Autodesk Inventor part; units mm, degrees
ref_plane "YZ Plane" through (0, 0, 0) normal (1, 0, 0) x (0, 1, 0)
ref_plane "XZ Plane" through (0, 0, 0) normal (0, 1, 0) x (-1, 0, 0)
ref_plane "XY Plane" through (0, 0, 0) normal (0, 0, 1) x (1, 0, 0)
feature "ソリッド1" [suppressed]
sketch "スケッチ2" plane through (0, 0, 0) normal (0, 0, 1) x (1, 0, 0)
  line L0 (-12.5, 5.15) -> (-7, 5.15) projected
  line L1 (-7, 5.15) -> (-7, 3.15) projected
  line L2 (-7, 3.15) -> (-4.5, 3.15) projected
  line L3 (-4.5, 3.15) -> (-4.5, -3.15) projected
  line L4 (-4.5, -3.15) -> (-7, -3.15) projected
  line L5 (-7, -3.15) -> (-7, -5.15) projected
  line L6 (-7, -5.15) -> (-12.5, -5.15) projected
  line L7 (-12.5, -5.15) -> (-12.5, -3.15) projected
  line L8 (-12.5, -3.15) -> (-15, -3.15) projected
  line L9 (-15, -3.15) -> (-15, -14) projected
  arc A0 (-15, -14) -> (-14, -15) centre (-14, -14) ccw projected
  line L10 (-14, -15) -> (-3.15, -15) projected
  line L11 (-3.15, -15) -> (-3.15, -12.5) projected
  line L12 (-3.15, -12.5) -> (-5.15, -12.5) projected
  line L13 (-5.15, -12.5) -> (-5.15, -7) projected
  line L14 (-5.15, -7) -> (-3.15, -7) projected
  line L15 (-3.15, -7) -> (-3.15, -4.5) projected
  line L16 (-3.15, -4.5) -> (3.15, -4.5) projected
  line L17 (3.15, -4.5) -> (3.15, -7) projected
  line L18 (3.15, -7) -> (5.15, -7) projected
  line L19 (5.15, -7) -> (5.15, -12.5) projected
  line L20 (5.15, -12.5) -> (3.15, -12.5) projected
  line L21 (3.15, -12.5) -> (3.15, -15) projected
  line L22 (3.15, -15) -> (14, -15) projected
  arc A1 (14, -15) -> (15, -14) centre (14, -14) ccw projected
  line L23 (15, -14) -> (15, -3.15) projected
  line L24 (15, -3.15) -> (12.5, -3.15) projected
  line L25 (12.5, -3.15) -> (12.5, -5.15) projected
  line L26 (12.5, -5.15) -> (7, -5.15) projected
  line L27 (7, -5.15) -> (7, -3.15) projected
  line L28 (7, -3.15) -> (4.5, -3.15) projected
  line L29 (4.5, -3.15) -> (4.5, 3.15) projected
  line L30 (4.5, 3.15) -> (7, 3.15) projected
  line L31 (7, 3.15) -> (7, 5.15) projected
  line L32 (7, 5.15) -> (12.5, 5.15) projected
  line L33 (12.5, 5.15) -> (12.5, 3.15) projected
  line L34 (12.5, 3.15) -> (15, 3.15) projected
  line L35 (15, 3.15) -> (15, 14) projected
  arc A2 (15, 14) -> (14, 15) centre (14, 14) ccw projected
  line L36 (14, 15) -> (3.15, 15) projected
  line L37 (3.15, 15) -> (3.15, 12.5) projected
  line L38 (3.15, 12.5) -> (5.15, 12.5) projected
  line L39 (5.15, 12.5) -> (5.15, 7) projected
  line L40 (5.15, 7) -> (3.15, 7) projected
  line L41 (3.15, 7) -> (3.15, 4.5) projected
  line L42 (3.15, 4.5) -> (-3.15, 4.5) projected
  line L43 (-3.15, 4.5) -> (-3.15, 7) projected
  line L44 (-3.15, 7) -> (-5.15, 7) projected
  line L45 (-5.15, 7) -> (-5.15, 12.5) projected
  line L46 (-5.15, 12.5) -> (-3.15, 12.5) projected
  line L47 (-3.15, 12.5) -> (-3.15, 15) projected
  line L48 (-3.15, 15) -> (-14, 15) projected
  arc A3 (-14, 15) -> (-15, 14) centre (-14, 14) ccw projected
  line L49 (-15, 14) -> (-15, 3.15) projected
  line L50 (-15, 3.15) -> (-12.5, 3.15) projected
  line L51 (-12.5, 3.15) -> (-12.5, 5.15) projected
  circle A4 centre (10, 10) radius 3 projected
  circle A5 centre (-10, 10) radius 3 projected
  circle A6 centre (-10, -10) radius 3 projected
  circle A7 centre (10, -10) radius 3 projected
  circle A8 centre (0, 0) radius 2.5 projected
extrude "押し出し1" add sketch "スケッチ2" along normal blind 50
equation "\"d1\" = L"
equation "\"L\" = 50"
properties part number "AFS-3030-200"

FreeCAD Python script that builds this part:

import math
import FreeCAD as App
import Part
import Sketcher

doc = App.newDocument("Part")
body = doc.addObject("PartDesign::Body", "Body")

# Sketch on XY plane
sketch1 = body.newObject("Sketcher::SketchObject", "Sketch")
sketch1.AttachmentSupport = (doc.getObject("XY_Plane"), [""])
sketch1.MapMode = "FlatFace"
sketch1.addGeometry([
    Part.LineSegment(App.Vector(-12.5, 3.15, 0), App.Vector(-12.5, 5.15, 0)),  # 0
    Part.LineSegment(App.Vector(-12.5, 5.15, 0), App.Vector(-7, 5.15, 0)),  # 1
    Part.LineSegment(App.Vector(-7, 5.15, 0), App.Vector(-7, 3.15, 0)),  # 2
    Part.LineSegment(App.Vector(-7, 3.15, 0), App.Vector(-4.5, 3.15, 0)),  # 3
    Part.LineSegment(App.Vector(-4.5, 3.15, 0), App.Vector(-4.5, -3.15, 0)),  # 4
    Part.LineSegment(App.Vector(-4.5, -3.15, 0), App.Vector(-7, -3.15, 0)),  # 5
    Part.LineSegment(App.Vector(-7, -3.15, 0), App.Vector(-7, -5.15, 0)),  # 6
    Part.LineSegment(App.Vector(-7, -5.15, 0), App.Vector(-12.5, -5.15, 0)),  # 7
    Part.LineSegment(App.Vector(-12.5, -5.15, 0), App.Vector(-12.5, -3.15, 0)),  # 8
    Part.LineSegment(App.Vector(-12.5, -3.15, 0), App.Vector(-15, -3.15, 0)),  # 9
    Part.LineSegment(App.Vector(-15, -3.15, 0), App.Vector(-15, -14, 0)),  # 10
    Part.ArcOfCircle(Part.Circle(App.Vector(-14, -14, 0), App.Vector(0, 0, 1), 1), math.radians(180), math.radians(270)),  # 11
    Part.LineSegment(App.Vector(-14, -15, 0), App.Vector(-3.15, -15, 0)),  # 12
    Part.LineSegment(App.Vector(-3.15, -15, 0), App.Vector(-3.15, -12.5, 0)),  # 13
    Part.LineSegment(App.Vector(-3.15, -12.5, 0), App.Vector(-5.15, -12.5, 0)),  # 14
    Part.LineSegment(App.Vector(-5.15, -12.5, 0), App.Vector(-5.15, -7, 0)),  # 15
    Part.LineSegment(App.Vector(-5.15, -7, 0), App.Vector(-3.15, -7, 0)),  # 16
    Part.LineSegment(App.Vector(-3.15, -7, 0), App.Vector(-3.15, -4.5, 0)),  # 17
    Part.LineSegment(App.Vector(-3.15, -4.5, 0), App.Vector(3.15, -4.5, 0)),  # 18
    Part.LineSegment(App.Vector(3.15, -4.5, 0), App.Vector(3.15, -7, 0)),  # 19
    Part.LineSegment(App.Vector(3.15, -7, 0), App.Vector(5.15, -7, 0)),  # 20
    Part.LineSegment(App.Vector(5.15, -7, 0), App.Vector(5.15, -12.5, 0)),  # 21
    Part.LineSegment(App.Vector(5.15, -12.5, 0), App.Vector(3.15, -12.5, 0)),  # 22
    Part.LineSegment(App.Vector(3.15, -12.5, 0), App.Vector(3.15, -15, 0)),  # 23
    Part.LineSegment(App.Vector(3.15, -15, 0), App.Vector(14, -15, 0)),  # 24
    Part.ArcOfCircle(Part.Circle(App.Vector(14, -14, 0), App.Vector(0, 0, 1), 1), math.radians(-90), math.radians(0)),  # 25
    Part.LineSegment(App.Vector(15, -14, 0), App.Vector(15, -3.15, 0)),  # 26
    Part.LineSegment(App.Vector(15, -3.15, 0), App.Vector(12.5, -3.15, 0)),  # 27
    Part.LineSegment(App.Vector(12.5, -3.15, 0), App.Vector(12.5, -5.15, 0)),  # 28
    Part.LineSegment(App.Vector(12.5, -5.15, 0), App.Vector(7, -5.15, 0)),  # 29
    Part.LineSegment(App.Vector(7, -5.15, 0), App.Vector(7, -3.15, 0)),  # 30
    Part.LineSegment(App.Vector(7, -3.15, 0), App.Vector(4.5, -3.15, 0)),  # 31
    Part.LineSegment(App.Vector(4.5, -3.15, 0), App.Vector(4.5, 3.15, 0)),  # 32
    Part.LineSegment(App.Vector(4.5, 3.15, 0), App.Vector(7, 3.15, 0)),  # 33
    Part.LineSegment(App.Vector(7, 3.15, 0), App.Vector(7, 5.15, 0)),  # 34
    Part.LineSegment(App.Vector(7, 5.15, 0), App.Vector(12.5, 5.15, 0)),  # 35
    Part.LineSegment(App.Vector(12.5, 5.15, 0), App.Vector(12.5, 3.15, 0)),  # 36
    Part.LineSegment(App.Vector(12.5, 3.15, 0), App.Vector(15, 3.15, 0)),  # 37
    Part.LineSegment(App.Vector(15, 3.15, 0), App.Vector(15, 14, 0)),  # 38
    Part.ArcOfCircle(Part.Circle(App.Vector(14, 14, 0), App.Vector(0, 0, 1), 1), math.radians(0), math.radians(90)),  # 39
    Part.LineSegment(App.Vector(14, 15, 0), App.Vector(3.15, 15, 0)),  # 40
    Part.LineSegment(App.Vector(3.15, 15, 0), App.Vector(3.15, 12.5, 0)),  # 41
    Part.LineSegment(App.Vector(3.15, 12.5, 0), App.Vector(5.15, 12.5, 0)),  # 42
    Part.LineSegment(App.Vector(5.15, 12.5, 0), App.Vector(5.15, 7, 0)),  # 43
    Part.LineSegment(App.Vector(5.15, 7, 0), App.Vector(3.15, 7, 0)),  # 44
    Part.LineSegment(App.Vector(3.15, 7, 0), App.Vector(3.15, 4.5, 0)),  # 45
    Part.LineSegment(App.Vector(3.15, 4.5, 0), App.Vector(-3.15, 4.5, 0)),  # 46
    Part.LineSegment(App.Vector(-3.15, 4.5, 0), App.Vector(-3.15, 7, 0)),  # 47
    Part.LineSegment(App.Vector(-3.15, 7, 0), App.Vector(-5.15, 7, 0)),  # 48
    Part.LineSegment(App.Vector(-5.15, 7, 0), App.Vector(-5.15, 12.5, 0)),  # 49
    Part.LineSegment(App.Vector(-5.15, 12.5, 0), App.Vector(-3.15, 12.5, 0)),  # 50
    Part.LineSegment(App.Vector(-3.15, 12.5, 0), App.Vector(-3.15, 15, 0)),  # 51
    Part.LineSegment(App.Vector(-3.15, 15, 0), App.Vector(-14, 15, 0)),  # 52
    Part.ArcOfCircle(Part.Circle(App.Vector(-14, 14, 0), App.Vector(0, 0, 1), 1), math.radians(90), math.radians(180)),  # 53
    Part.LineSegment(App.Vector(-15, 14, 0), App.Vector(-15, 3.15, 0)),  # 54
    Part.LineSegment(App.Vector(-15, 3.15, 0), App.Vector(-12.5, 3.15, 0)),  # 55
    Part.Circle(App.Vector(-10, -10, 0), App.Vector(0, 0, 1), 3),  # 56
    Part.Circle(App.Vector(10, -10, 0), App.Vector(0, 0, 1), 3),  # 57
    Part.Circle(App.Vector(-10, 10, 0), App.Vector(0, 0, 1), 3),  # 58
    Part.Circle(App.Vector(0, 0, 0), App.Vector(0, 0, 1), 2.5),  # 59
    Part.Circle(App.Vector(10, 10, 0), App.Vector(0, 0, 1), 3),  # 60
], False)
sketch1.addConstraint([
    Sketcher.Constraint("Coincident", 0, 2, 1, 1),
    Sketcher.Constraint("Coincident", 1, 2, 2, 1),
    Sketcher.Constraint("Coincident", 2, 2, 3, 1),
    Sketcher.Constraint("Coincident", 3, 2, 4, 1),
    Sketcher.Constraint("Coincident", 4, 2, 5, 1),
    Sketcher.Constraint("Coincident", 5, 2, 6, 1),
    Sketcher.Constraint("Coincident", 6, 2, 7, 1),
    Sketcher.Constraint("Coincident", 7, 2, 8, 1),
    Sketcher.Constraint("Coincident", 8, 2, 9, 1),
    Sketcher.Constraint("Coincident", 9, 2, 10, 1),
    Sketcher.Constraint("Tangent", 10, 2, 11, 1),
    Sketcher.Constraint("Tangent", 11, 2, 12, 1),
    Sketcher.Constraint("Coincident", 12, 2, 13, 1),
    Sketcher.Constraint("Coincident", 13, 2, 14, 1),
    Sketcher.Constraint("Coincident", 14, 2, 15, 1),
    Sketcher.Constraint("Coincident", 15, 2, 16, 1),
    Sketcher.Constraint("Coincident", 16, 2, 17, 1),
    Sketcher.Constraint("Coincident", 17, 2, 18, 1),
    Sketcher.Constraint("Coincident", 18, 2, 19, 1),
    Sketcher.Constraint("Coincident", 19, 2, 20, 1),
    Sketcher.Constraint("Coincident", 20, 2, 21, 1),
    Sketcher.Constraint("Coincident", 21, 2, 22, 1),
    Sketcher.Constraint("Coincident", 22, 2, 23, 1),
    Sketcher.Constraint("Coincident", 23, 2, 24, 1),
    Sketcher.Constraint("Tangent", 24, 2, 25, 1),
    Sketcher.Constraint("Tangent", 25, 2, 26, 1),
    Sketcher.Constraint("Coincident", 26, 2, 27, 1),
    Sketcher.Constraint("Coincident", 27, 2, 28, 1),
    Sketcher.Constraint("Coincident", 28, 2, 29, 1),
    Sketcher.Constraint("Coincident", 29, 2, 30, 1),
    Sketcher.Constraint("Coincident", 30, 2, 31, 1),
    Sketcher.Constraint("Coincident", 31, 2, 32, 1),
    Sketcher.Constraint("Coincident", 32, 2, 33, 1),
    Sketcher.Constraint("Coincident", 33, 2, 34, 1),
    Sketcher.Constraint("Coincident", 34, 2, 35, 1),
    Sketcher.Constraint("Coincident", 35, 2, 36, 1),
    Sketcher.Constraint("Coincident", 36, 2, 37, 1),
    Sketcher.Constraint("Coincident", 37, 2, 38, 1),
    Sketcher.Constraint("Tangent", 38, 2, 39, 1),
    Sketcher.Constraint("Tangent", 39, 2, 40, 1),
    Sketcher.Constraint("Coincident", 40, 2, 41, 1),
    Sketcher.Constraint("Coincident", 41, 2, 42, 1),
    Sketcher.Constraint("Coincident", 42, 2, 43, 1),
    Sketcher.Constraint("Coincident", 43, 2, 44, 1),
    Sketcher.Constraint("Coincident", 44, 2, 45, 1),
    Sketcher.Constraint("Coincident", 45, 2, 46, 1),
    Sketcher.Constraint("Coincident", 46, 2, 47, 1),
    Sketcher.Constraint("Coincident", 47, 2, 48, 1),
    Sketcher.Constraint("Coincident", 48, 2, 49, 1),
    Sketcher.Constraint("Coincident", 49, 2, 50, 1),
    Sketcher.Constraint("Coincident", 50, 2, 51, 1),
    Sketcher.Constraint("Coincident", 51, 2, 52, 1),
    Sketcher.Constraint("Tangent", 52, 2, 53, 1),
    Sketcher.Constraint("Tangent", 53, 2, 54, 1),
    Sketcher.Constraint("Coincident", 54, 2, 55, 1),
    Sketcher.Constraint("Coincident", 55, 2, 0, 1),
    Sketcher.Constraint("Vertical", 0),
    Sketcher.Constraint("Horizontal", 1),
    Sketcher.Constraint("Vertical", 2),
    Sketcher.Constraint("Horizontal", 3),
    Sketcher.Constraint("Vertical", 4),
    Sketcher.Constraint("Horizontal", 5),
    Sketcher.Constraint("Vertical", 6),
    Sketcher.Constraint("Horizontal", 7),
    Sketcher.Constraint("Vertical", 8),
    Sketcher.Constraint("Horizontal", 9),
    Sketcher.Constraint("Vertical", 10),
    Sketcher.Constraint("Horizontal", 12),
    Sketcher.Constraint("Vertical", 13),
    Sketcher.Constraint("Horizontal", 14),
    Sketcher.Constraint("Vertical", 15),
    Sketcher.Constraint("Horizontal", 16),
    Sketcher.Constraint("Vertical", 17),
    Sketcher.Constraint("Horizontal", 18),
    Sketcher.Constraint("Vertical", 19),
    Sketcher.Constraint("Horizontal", 20),
    Sketcher.Constraint("Vertical", 21),
    Sketcher.Constraint("Horizontal", 22),
    Sketcher.Constraint("Vertical", 23),
    Sketcher.Constraint("Horizontal", 24),
    Sketcher.Constraint("Vertical", 26),
    Sketcher.Constraint("Horizontal", 27),
    Sketcher.Constraint("Vertical", 28),
    Sketcher.Constraint("Horizontal", 29),
    Sketcher.Constraint("Vertical", 30),
    Sketcher.Constraint("Horizontal", 31),
    Sketcher.Constraint("Vertical", 32),
    Sketcher.Constraint("Horizontal", 33),
    Sketcher.Constraint("Vertical", 34),
    Sketcher.Constraint("Horizontal", 35),
    Sketcher.Constraint("Vertical", 36),
    Sketcher.Constraint("Horizontal", 37),
    Sketcher.Constraint("Vertical", 38),
    Sketcher.Constraint("Horizontal", 40),
    Sketcher.Constraint("Vertical", 41),
    Sketcher.Constraint("Horizontal", 42),
    Sketcher.Constraint("Vertical", 43),
    Sketcher.Constraint("Horizontal", 44),
    Sketcher.Constraint("Vertical", 45),
    Sketcher.Constraint("Horizontal", 46),
    Sketcher.Constraint("Vertical", 47),
    Sketcher.Constraint("Horizontal", 48),
    Sketcher.Constraint("Vertical", 49),
    Sketcher.Constraint("Horizontal", 50),
    Sketcher.Constraint("Vertical", 51),
    Sketcher.Constraint("Horizontal", 52),
    Sketcher.Constraint("Vertical", 54),
    Sketcher.Constraint("Horizontal", 55),
    Sketcher.Constraint("Coincident", 59, 3, -1, 1),
    Sketcher.Constraint("Equal", 11, 25),
    Sketcher.Constraint("Equal", 25, 39),
    Sketcher.Constraint("Equal", 39, 53),
    Sketcher.Constraint("Equal", 56, 57),
    Sketcher.Constraint("Equal", 57, 58),
    Sketcher.Constraint("Equal", 58, 60),
    Sketcher.Constraint("Symmetric", 11, 3, 39, 3, -1, 1),
    Sketcher.Constraint("Symmetric", 25, 3, 53, 3, -1, 1),
    Sketcher.Constraint("Symmetric", 57, 3, 58, 3, -1, 1),
    Sketcher.Constraint("Symmetric", 56, 3, 60, 3, -1, 1),
    Sketcher.Constraint("Symmetric", 0, 2, 28, 2, -1, 1),
    Sketcher.Constraint("Symmetric", 2, 2, 30, 2, -1, 1),
    Sketcher.Constraint("Symmetric", 4, 2, 32, 2, -1, 1),
    Sketcher.Constraint("Symmetric", 6, 2, 34, 2, -1, 1),
    Sketcher.Constraint("Symmetric", 8, 2, 36, 2, -1, 1),
    Sketcher.Constraint("Symmetric", 13, 2, 41, 2, -1, 1),
    Sketcher.Constraint("Symmetric", 15, 2, 43, 2, -1, 1),
    Sketcher.Constraint("Symmetric", 17, 2, 45, 2, -1, 1),
    Sketcher.Constraint("Symmetric", 19, 2, 47, 2, -1, 1),
    Sketcher.Constraint("Symmetric", 21, 2, 49, 2, -1, 1),
    Sketcher.Constraint("Symmetric", 11, 3, 25, 3, -2),
    Sketcher.Constraint("Symmetric", 56, 3, 57, 3, -2),
    Sketcher.Constraint("Symmetric", 16, 2, 19, 2, -2),
    Sketcher.Constraint("Symmetric", 14, 2, 21, 2, -2),
    Sketcher.Constraint("Symmetric", 8, 2, 27, 2, -2),
    Sketcher.Constraint("Symmetric", 6, 2, 29, 2, -2),
    Sketcher.Constraint("Horizontal", 5, 2, 8, 2),
    Sketcher.Constraint("Horizontal", 27, 2, 30, 2),
    Sketcher.Constraint("Horizontal", 37, 2, 54, 2),
    Sketcher.Constraint("Vertical", 13, 2, 16, 2),
    Sketcher.Constraint("Vertical", 19, 2, 22, 2),
    Sketcher.Constraint("Vertical", 47, 2, 50, 2),
    Sketcher.Constraint("Equal", 5, 9),
    Sketcher.Constraint("Equal", 50, 0),
    Sketcher.Constraint("Equal", 46, 4),
    Sketcher.Constraint("Equal", 52, 10),
    Sketcher.Constraint("Equal", 55, 13),
    Sketcher.Constraint("Equal", 35, 15),
    Sketcher.Constraint("Equal", 13, 17),
    Sketcher.Constraint("Diameter", 56, 6.0),
    Sketcher.Constraint("Diameter", 59, 5.0),
    Sketcher.Constraint("Radius", 11, 1.0),
    Sketcher.Constraint("DistanceX", 14, 2, 14, 1, 2.0),
    Sketcher.Constraint("DistanceX", 1, 1, 1, 2, 5.5),
    Sketcher.Constraint("DistanceX", 3, 1, 3, 2, 2.5),
    Sketcher.Constraint("DistanceX", 18, 1, 18, 2, 6.3),
    Sketcher.Constraint("DistanceX", 11, 3, -1, 1, 14.0),
    Sketcher.Constraint("DistanceX", 56, 3, -1, 1, 10.0),
    Sketcher.Constraint("DistanceY", 56, 3, -1, 1, 10.0),
])
pad1 = body.newObject("PartDesign::Pad", "Pad")
pad1.Profile = sketch1
pad1.Length = 50

doc.recompute()
